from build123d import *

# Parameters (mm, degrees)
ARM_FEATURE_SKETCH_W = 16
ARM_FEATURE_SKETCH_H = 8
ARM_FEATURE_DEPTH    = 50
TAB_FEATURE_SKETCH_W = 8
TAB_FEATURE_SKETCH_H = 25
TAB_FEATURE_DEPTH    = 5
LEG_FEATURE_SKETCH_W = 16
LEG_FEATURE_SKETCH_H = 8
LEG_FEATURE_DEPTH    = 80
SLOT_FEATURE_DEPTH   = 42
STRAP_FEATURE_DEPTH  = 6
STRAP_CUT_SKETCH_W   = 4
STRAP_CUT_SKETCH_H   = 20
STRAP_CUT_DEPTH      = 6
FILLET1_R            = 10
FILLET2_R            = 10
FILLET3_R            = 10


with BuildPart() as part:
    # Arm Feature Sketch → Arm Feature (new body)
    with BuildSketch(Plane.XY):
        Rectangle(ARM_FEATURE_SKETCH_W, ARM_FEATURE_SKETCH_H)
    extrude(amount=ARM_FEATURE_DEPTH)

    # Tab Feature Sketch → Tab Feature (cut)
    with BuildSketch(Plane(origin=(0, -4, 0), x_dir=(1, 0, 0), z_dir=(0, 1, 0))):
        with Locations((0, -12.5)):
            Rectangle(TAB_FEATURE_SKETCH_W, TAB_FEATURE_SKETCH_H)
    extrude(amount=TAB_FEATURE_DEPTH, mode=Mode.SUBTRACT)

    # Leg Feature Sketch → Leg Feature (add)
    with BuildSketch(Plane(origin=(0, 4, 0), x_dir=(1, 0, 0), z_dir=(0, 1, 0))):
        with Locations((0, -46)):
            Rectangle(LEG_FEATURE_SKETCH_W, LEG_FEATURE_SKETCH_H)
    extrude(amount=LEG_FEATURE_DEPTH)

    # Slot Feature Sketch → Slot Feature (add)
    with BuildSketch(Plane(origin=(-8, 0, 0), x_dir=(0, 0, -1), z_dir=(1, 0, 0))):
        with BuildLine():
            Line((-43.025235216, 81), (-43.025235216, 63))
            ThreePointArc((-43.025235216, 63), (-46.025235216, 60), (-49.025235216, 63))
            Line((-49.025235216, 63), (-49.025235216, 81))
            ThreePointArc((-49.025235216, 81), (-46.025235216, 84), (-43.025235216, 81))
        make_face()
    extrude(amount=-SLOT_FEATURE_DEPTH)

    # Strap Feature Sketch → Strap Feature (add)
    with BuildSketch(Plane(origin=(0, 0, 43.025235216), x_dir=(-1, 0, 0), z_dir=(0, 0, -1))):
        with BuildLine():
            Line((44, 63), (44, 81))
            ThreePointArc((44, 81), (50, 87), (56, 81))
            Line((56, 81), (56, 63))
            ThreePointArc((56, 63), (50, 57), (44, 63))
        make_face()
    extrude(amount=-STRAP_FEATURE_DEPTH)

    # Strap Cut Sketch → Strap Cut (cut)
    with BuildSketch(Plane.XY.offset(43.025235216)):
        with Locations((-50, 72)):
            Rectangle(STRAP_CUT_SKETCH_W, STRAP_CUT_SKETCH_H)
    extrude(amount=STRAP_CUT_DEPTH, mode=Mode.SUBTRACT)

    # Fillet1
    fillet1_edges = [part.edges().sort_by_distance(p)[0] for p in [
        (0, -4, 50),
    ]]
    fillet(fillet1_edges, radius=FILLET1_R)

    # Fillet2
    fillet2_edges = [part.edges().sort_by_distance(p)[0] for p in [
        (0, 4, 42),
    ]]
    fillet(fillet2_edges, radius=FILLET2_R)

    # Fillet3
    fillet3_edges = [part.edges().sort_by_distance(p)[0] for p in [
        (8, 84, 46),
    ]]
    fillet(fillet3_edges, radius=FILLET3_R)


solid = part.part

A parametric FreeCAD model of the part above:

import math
import FreeCAD as App
import Part
import Sketcher

V = App.Vector
Q = App.Units.Quantity


def edges_at(feature, points):
    """Names of the edges that pass closest to the given points."""
    edges = feature.Shape.Edges
    near = lambda p: min(range(len(edges)), key=lambda i: edges[i].distToShape(Part.Vertex(*p))[0])
    return sorted({f"Edge{near(p) + 1}" for p in points})

doc = App.newDocument("Part")
body = doc.addObject("PartDesign::Body", "Body")

# Sketch on XY plane
sketch1 = body.newObject("Sketcher::SketchObject", "Sketch")
sketch1.AttachmentSupport = (doc.getObject("XY_Plane"), [""])
sketch1.MapMode = "FlatFace"
sketch1.addGeometry(Part.LineSegment(V(-8, 4, 0), V(-8, -4, 0)), False)
sketch1.addGeometry(Part.LineSegment(V(-8, -4, 0), V(8, -4, 0)), False)
sketch1.addGeometry(Part.LineSegment(V(8, -4, 0), V(8, 4, 0)), False)
sketch1.addGeometry(Part.LineSegment(V(8, 4, 0), V(-8, 4, 0)), False)
sketch1.addConstraint(Sketcher.Constraint("Coincident", 0, 2, 1, 1))
sketch1.addConstraint(Sketcher.Constraint("Coincident", 1, 2, 2, 1))
sketch1.addConstraint(Sketcher.Constraint("Coincident", 2, 2, 3, 1))
sketch1.addConstraint(Sketcher.Constraint("Coincident", 3, 2, 0, 1))
sketch1.addConstraint(Sketcher.Constraint("Vertical", 0))
sketch1.addConstraint(Sketcher.Constraint("Horizontal", 1))
sketch1.addConstraint(Sketcher.Constraint("Vertical", 2))
sketch1.addConstraint(Sketcher.Constraint("Horizontal", 3))
sketch1.addConstraint(Sketcher.Constraint("Symmetric", 0, 2, 2, 2, -1, 1))
sketch1.addConstraint(Sketcher.Constraint("DistanceX", 1, 1, 1, 2, Q("16 mm")))
sketch1.addConstraint(Sketcher.Constraint("DistanceY", 0, 2, 0, 1, Q("8 mm")))
pad1 = body.newObject("PartDesign::Pad", "Pad")
pad1.Profile = sketch1
pad1.Length = 50

# Sketch on XZ plane
sketch2 = body.newObject("Sketcher::SketchObject", "Sketch001")
sketch2.AttachmentSupport = (doc.getObject("XZ_Plane"), [""])
sketch2.MapMode = "FlatFace"
sketch2.AttachmentOffset = App.Placement(V(0, 0, 4), App.Rotation())
sketch2.addGeometry(Part.LineSegment(V(-4, 0, 0), V(-4, 25, 0)), False)
sketch2.addGeometry(Part.LineSegment(V(-4, 25, 0), V(4, 25, 0)), False)
sketch2.addGeometry(Part.LineSegment(V(4, 25, 0), V(4, 0, 0)), False)
sketch2.addGeometry(Part.LineSegment(V(4, 0, 0), V(-4, 0, 0)), False)
sketch2.addConstraint(Sketcher.Constraint("Coincident", 0, 2, 1, 1))
sketch2.addConstraint(Sketcher.Constraint("Coincident", 1, 2, 2, 1))
sketch2.addConstraint(Sketcher.Constraint("Coincident", 2, 2, 3, 1))
sketch2.addConstraint(Sketcher.Constraint("Coincident", 3, 2, 0, 1))
sketch2.addConstraint(Sketcher.Constraint("Vertical", 0))
sketch2.addConstraint(Sketcher.Constraint("Horizontal", 1))
sketch2.addConstraint(Sketcher.Constraint("Vertical", 2))
sketch2.addConstraint(Sketcher.Constraint("Horizontal", 3))
sketch2.addConstraint(Sketcher.Constraint("Symmetric", 2, 2, 3, 2, -1, 1))
sketch2.addConstraint(Sketcher.Constraint("DistanceX", 1, 1, 1, 2, Q("8 mm")))
sketch2.addConstraint(Sketcher.Constraint("DistanceY", 0, 1, 0, 2, Q("25 mm")))
pocket1 = body.newObject("PartDesign::Pocket", "Pocket")
pocket1.Profile = sketch2
pocket1.Length = 5

# Sketch on XZ plane
sketch3 = body.newObject("Sketcher::SketchObject", "Sketch002")
sketch3.AttachmentSupport = (doc.getObject("XZ_Plane"), [""])
sketch3.MapMode = "FlatFace"
sketch3.AttachmentOffset = App.Placement(V(0, 0, -4), App.Rotation())
sketch3.addGeometry(Part.LineSegment(V(-8, 42, 0), V(-8, 50, 0)), False)
sketch3.addGeometry(Part.LineSegment(V(-8, 50, 0), V(8, 50, 0)), False)
sketch3.addGeometry(Part.LineSegment(V(8, 50, 0), V(8, 42, 0)), False)
sketch3.addGeometry(Part.LineSegment(V(8, 42, 0), V(-8, 42, 0)), False)
sketch3.addConstraint(Sketcher.Constraint("Coincident", 0, 2, 1, 1))
sketch3.addConstraint(Sketcher.Constraint("Coincident", 1, 2, 2, 1))
sketch3.addConstraint(Sketcher.Constraint("Coincident", 2, 2, 3, 1))
sketch3.addConstraint(Sketcher.Constraint("Coincident", 3, 2, 0, 1))
sketch3.addConstraint(Sketcher.Constraint("Vertical", 0))
sketch3.addConstraint(Sketcher.Constraint("Horizontal", 1))
sketch3.addConstraint(Sketcher.Constraint("Vertical", 2))
sketch3.addConstraint(Sketcher.Constraint("Horizontal", 3))
sketch3.addConstraint(Sketcher.Constraint("DistanceX", 1, 1, 1, 2, Q("16 mm")))
sketch3.addConstraint(Sketcher.Constraint("DistanceY", 0, 1, 0, 2, Q("8 mm")))
sketch3.addConstraint(Sketcher.Constraint("DistanceX", 0, 2, -1, 1, Q("8 mm")))
sketch3.addConstraint(Sketcher.Constraint("DistanceY", -1, 1, 0, 2, Q("50 mm")))
pad2 = body.newObject("PartDesign::Pad", "Pad001")
pad2.Profile = sketch3
pad2.Length = 80
pad2.Reversed = True

# Sketch on YZ plane
sketch4 = body.newObject("Sketcher::SketchObject", "Sketch003")
sketch4.AttachmentSupport = (doc.getObject("YZ_Plane"), [""])
sketch4.MapMode = "FlatFace"
sketch4.AttachmentOffset = App.Placement(V(0, 0, -8), App.Rotation())
sketch4.addGeometry(Part.LineSegment(V(63, 43, 0), V(81, 43, 0)), False)
sketch4.addGeometry(Part.ArcOfCircle(Part.Circle(V(81, 46, 0), V(0, 0, 1), 3), math.radians(-90), math.radians(90)), False)
sketch4.addGeometry(Part.LineSegment(V(81, 49, 0), V(63, 49, 0)), False)
sketch4.addGeometry(Part.ArcOfCircle(Part.Circle(V(63, 46, 0), V(0, 0, 1), 3), math.radians(90), math.radians(270)), False)
sketch4.addConstraint(Sketcher.Constraint("Tangent", 0, 2, 1, 1))
sketch4.addConstraint(Sketcher.Constraint("Tangent", 1, 2, 2, 1))
sketch4.addConstraint(Sketcher.Constraint("Tangent", 2, 2, 3, 1))
sketch4.addConstraint(Sketcher.Constraint("Tangent", 3, 2, 0, 1))
sketch4.addConstraint(Sketcher.Constraint("Horizontal", 0))
sketch4.addConstraint(Sketcher.Constraint("Horizontal", 2))
sketch4.addConstraint(Sketcher.Constraint("Radius", 1, Q("3 mm")))
sketch4.addConstraint(Sketcher.Constraint("DistanceX", 0, 1, 0, 2, Q("18 mm")))
sketch4.addConstraint(Sketcher.Constraint("DistanceX", -1, 1, 1, 3, Q("81 mm")))
sketch4.addConstraint(Sketcher.Constraint("DistanceY", -1, 1, 1, 3, Q("46.025235 mm")))
pad3 = body.newObject("PartDesign::Pad", "Pad002")
pad3.Profile = sketch4
pad3.Length = 42
pad3.Reversed = True

# Sketch on XY plane
sketch5 = body.newObject("Sketcher::SketchObject", "Sketch004")
sketch5.AttachmentSupport = (doc.getObject("XY_Plane"), [""])
sketch5.MapMode = "FlatFace"
sketch5.AttachmentOffset = App.Placement(V(0, 0, 43.025235), App.Rotation())
sketch5.addGeometry(Part.LineSegment(V(-44, 81, 0), V(-44, 63, 0)), False)
sketch5.addGeometry(Part.ArcOfCircle(Part.Circle(V(-50, 63, 0), V(0, 0, 1), 6), math.radians(180), math.radians(360)), False)
sketch5.addGeometry(Part.LineSegment(V(-56, 63, 0), V(-56, 81, 0)), False)
sketch5.addGeometry(Part.ArcOfCircle(Part.Circle(V(-50, 81, 0), V(0, 0, 1), 6), math.radians(0), math.radians(180)), False)
sketch5.addConstraint(Sketcher.Constraint("Tangent", 0, 2, 1, 2))
sketch5.addConstraint(Sketcher.Constraint("Tangent", 1, 1, 2, 1))
sketch5.addConstraint(Sketcher.Constraint("Tangent", 2, 2, 3, 2))
sketch5.addConstraint(Sketcher.Constraint("Tangent", 3, 1, 0, 1))
sketch5.addConstraint(Sketcher.Constraint("Vertical", 0))
sketch5.addConstraint(Sketcher.Constraint("Vertical", 2))
sketch5.addConstraint(Sketcher.Constraint("Radius", 1, Q("6 mm")))
sketch5.addConstraint(Sketcher.Constraint("DistanceY", 0, 2, 0, 1, Q("18 mm")))
sketch5.addConstraint(Sketcher.Constraint("DistanceX", 1, 3, -1, 1, Q("50 mm")))
sketch5.addConstraint(Sketcher.Constraint("DistanceY", -1, 1, 1, 3, Q("63 mm")))
pad4 = body.newObject("PartDesign::Pad", "Pad003")
pad4.Profile = sketch5
pad4.Length = 6

# Sketch on XY plane
sketch6 = body.newObject("Sketcher::SketchObject", "Sketch005")
sketch6.AttachmentSupport = (doc.getObject("XY_Plane"), [""])
sketch6.MapMode = "FlatFace"
sketch6.AttachmentOffset = App.Placement(V(0, 0, 43.025235), App.Rotation())
sketch6.addGeometry(Part.LineSegment(V(-52, 82, 0), V(-52, 62, 0)), False)
sketch6.addGeometry(Part.LineSegment(V(-52, 62, 0), V(-48, 62, 0)), False)
sketch6.addGeometry(Part.LineSegment(V(-48, 62, 0), V(-48, 82, 0)), False)
sketch6.addGeometry(Part.LineSegment(V(-48, 82, 0), V(-52, 82, 0)), False)
sketch6.addConstraint(Sketcher.Constraint("Coincident", 0, 2, 1, 1))
sketch6.addConstraint(Sketcher.Constraint("Coincident", 1, 2, 2, 1))
sketch6.addConstraint(Sketcher.Constraint("Coincident", 2, 2, 3, 1))
sketch6.addConstraint(Sketcher.Constraint("Coincident", 3, 2, 0, 1))
sketch6.addConstraint(Sketcher.Constraint("Vertical", 0))
sketch6.addConstraint(Sketcher.Constraint("Horizontal", 1))
sketch6.addConstraint(Sketcher.Constraint("Vertical", 2))
sketch6.addConstraint(Sketcher.Constraint("Horizontal", 3))
sketch6.addConstraint(Sketcher.Constraint("DistanceX", 1, 1, 1, 2, Q("4 mm")))
sketch6.addConstraint(Sketcher.Constraint("DistanceY", 0, 2, 0, 1, Q("20 mm")))
sketch6.addConstraint(Sketcher.Constraint("DistanceX", 0, 2, -1, 1, Q("52 mm")))
sketch6.addConstraint(Sketcher.Constraint("DistanceY", -1, 1, 0, 2, Q("62 mm")))
pocket2 = body.newObject("PartDesign::Pocket", "Pocket001")
pocket2.Profile = sketch6
pocket2.Length = 6
pocket2.Reversed = True
doc.recompute()

fillet = body.newObject("PartDesign::Fillet", "Fillet")
fillet.Base = (pocket2, edges_at(pocket2, [(0, -4, 50)]))
fillet.Radius = 10
doc.recompute()

fillet2 = body.newObject("PartDesign::Fillet", "Fillet001")
fillet2.Base = (fillet, edges_at(fillet, [(0, 4, 42)]))
fillet2.Radius = 10
doc.recompute()

fillet3 = body.newObject("PartDesign::Fillet", "Fillet002")
fillet3.Base = (fillet2, edges_at(fillet2, [(8, 84, 46)]))
fillet3.Radius = 10

doc.recompute()
